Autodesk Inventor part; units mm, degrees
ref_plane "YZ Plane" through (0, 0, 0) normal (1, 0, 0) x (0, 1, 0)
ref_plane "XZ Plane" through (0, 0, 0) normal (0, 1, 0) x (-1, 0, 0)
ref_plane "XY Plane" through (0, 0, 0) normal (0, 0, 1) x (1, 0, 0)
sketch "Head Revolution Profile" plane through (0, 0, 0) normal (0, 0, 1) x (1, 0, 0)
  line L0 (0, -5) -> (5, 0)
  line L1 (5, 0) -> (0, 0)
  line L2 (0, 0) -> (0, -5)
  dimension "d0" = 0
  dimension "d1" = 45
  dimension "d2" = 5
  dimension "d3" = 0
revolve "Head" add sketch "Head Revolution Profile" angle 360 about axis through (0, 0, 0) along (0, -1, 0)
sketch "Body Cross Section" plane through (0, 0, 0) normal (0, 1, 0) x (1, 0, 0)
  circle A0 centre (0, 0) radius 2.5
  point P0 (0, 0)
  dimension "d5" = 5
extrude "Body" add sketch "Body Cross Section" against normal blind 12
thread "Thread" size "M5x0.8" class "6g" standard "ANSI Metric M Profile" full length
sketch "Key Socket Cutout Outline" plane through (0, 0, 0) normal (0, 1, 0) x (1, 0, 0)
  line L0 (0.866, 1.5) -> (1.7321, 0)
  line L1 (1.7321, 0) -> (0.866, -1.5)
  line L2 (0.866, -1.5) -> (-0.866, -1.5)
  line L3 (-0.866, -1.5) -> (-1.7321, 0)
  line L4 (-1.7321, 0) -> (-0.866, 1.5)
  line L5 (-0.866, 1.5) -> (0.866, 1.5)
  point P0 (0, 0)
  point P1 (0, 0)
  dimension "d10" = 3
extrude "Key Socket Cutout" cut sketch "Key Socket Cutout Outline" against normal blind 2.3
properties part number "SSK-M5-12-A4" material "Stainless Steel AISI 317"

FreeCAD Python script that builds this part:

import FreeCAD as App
import Part
import Sketcher

V = App.Vector
Q = App.Units.Quantity


def add_polygon(sketch, points):
    """Adds a closed chain of lines whose ends are joined by coincident constraints."""
    first, n = sketch.GeometryCount, len(points)
    for a, b in zip(points, points[1:] + points[:1]):
        sketch.addGeometry(Part.LineSegment(App.Vector(*a, 0), App.Vector(*b, 0)), False)
    for i in range(n):
        sketch.addConstraint(Sketcher.Constraint("Coincident", first + i, 2, first + (i + 1) % n, 1))

doc = App.newDocument("Part")
params = doc.addObject("Spreadsheet::Sheet", "Params")
for row, (alias, value) in enumerate([
    ("sketch1_width", "5 mm"),
    ("revolution_angle", "360 deg"),
    ("sketch2_diameter", "5 mm"),
    ("pad1_length", "12 mm"),
    ("pocket1_length", "2.3 mm"),
], start=1):
    params.set(f"A{row}", alias)
    params.set(f"B{row}", "=" + value)
    params.setAlias(f"B{row}", alias)

body = doc.addObject("PartDesign::Body", "Body")

# Sketch on XY plane
sketch1 = body.newObject("Sketcher::SketchObject", "Sketch")
sketch1.AttachmentSupport = (doc.getObject("XY_Plane"), [""])
sketch1.MapMode = "FlatFace"
add_polygon(sketch1, [(0, 0), (0, -5), (5, 0)])  # lines 0-2
sketch1.addConstraint(Sketcher.Constraint("Vertical", 0))
sketch1.addConstraint(Sketcher.Constraint("Horizontal", 2))
sketch1.addConstraint(Sketcher.Constraint("Coincident", 2, 2, -1, 1))
sketch1.addConstraint(Sketcher.Constraint("Equal", 2, 0))
sketch1.addConstraint(Sketcher.Constraint("DistanceX", 2, 2, 2, 1, Q("5 mm")))
sketch1.setExpression("Constraints[7]", "Params.sketch1_width")
revolution = body.newObject("PartDesign::Revolution", "Revolution")
revolution.Profile = sketch1
revolution.ReferenceAxis = (sketch1, ["V_Axis"])
revolution.setExpression("Angle", "Params.revolution_angle")

# Sketch on XZ plane
sketch2 = body.newObject("Sketcher::SketchObject", "Sketch001")
sketch2.AttachmentSupport = (doc.getObject("XZ_Plane"), [""])
sketch2.MapMode = "FlatFace"
sketch2.addGeometry(Part.Circle(V(0, 0, 0), V(0, 0, 1), 2.5), False)
sketch2.addConstraint(Sketcher.Constraint("Coincident", 0, 3, -1, 1))
sketch2.addConstraint(Sketcher.Constraint("Diameter", 0, Q("5 mm")))
sketch2.setExpression("Constraints[1]", "Params.sketch2_diameter")
pad1 = body.newObject("PartDesign::Pad", "Pad")
pad1.Profile = sketch2
pad1.setExpression("Length", "Params.pad1_length")

# Sketch on XZ plane
sketch3 = body.newObject("Sketcher::SketchObject", "Sketch002")
sketch3.AttachmentSupport = (doc.getObject("XZ_Plane"), [""])
sketch3.MapMode = "FlatFace"
add_polygon(sketch3, [(1.7, 0), (0.9, -1.5), (-0.9, -1.5), (-1.7, 0), (-0.9, 1.5), (0.9, 1.5)])  # lines 0-5
sketch3.addConstraint(Sketcher.Constraint("Horizontal", 1))
sketch3.addConstraint(Sketcher.Constraint("Horizontal", 4))
sketch3.addConstraint(Sketcher.Constraint("Symmetric", 0, 2, 3, 2, -1, 1))
sketch3.addConstraint(Sketcher.Constraint("Symmetric", 2, 2, 5, 2, -1, 1))
sketch3.addConstraint(Sketcher.Constraint("PointOnObject", 2, 2, -1))
sketch3.addConstraint(Sketcher.Constraint("Parallel", 2, 5))
sketch3.addConstraint(Sketcher.Constraint("Vertical", 1, 2, 3, 2))
sketch3.addConstraint(Sketcher.Constraint("DistanceY", 1, 2, 3, 2, Q("3 mm")))
sketch3.addConstraint(Sketcher.Constraint("DistanceX", 1, 2, 1, 1, Q("1.732 mm")))
sketch3.addConstraint(Sketcher.Constraint("Distance", 0, Q("1.732 mm")))
pocket1 = body.newObject("PartDesign::Pocket", "Pocket")
pocket1.Profile = sketch3
pocket1.setExpression("Length", "Params.pocket1_length")
pocket1.Reversed = True

doc.recompute()
